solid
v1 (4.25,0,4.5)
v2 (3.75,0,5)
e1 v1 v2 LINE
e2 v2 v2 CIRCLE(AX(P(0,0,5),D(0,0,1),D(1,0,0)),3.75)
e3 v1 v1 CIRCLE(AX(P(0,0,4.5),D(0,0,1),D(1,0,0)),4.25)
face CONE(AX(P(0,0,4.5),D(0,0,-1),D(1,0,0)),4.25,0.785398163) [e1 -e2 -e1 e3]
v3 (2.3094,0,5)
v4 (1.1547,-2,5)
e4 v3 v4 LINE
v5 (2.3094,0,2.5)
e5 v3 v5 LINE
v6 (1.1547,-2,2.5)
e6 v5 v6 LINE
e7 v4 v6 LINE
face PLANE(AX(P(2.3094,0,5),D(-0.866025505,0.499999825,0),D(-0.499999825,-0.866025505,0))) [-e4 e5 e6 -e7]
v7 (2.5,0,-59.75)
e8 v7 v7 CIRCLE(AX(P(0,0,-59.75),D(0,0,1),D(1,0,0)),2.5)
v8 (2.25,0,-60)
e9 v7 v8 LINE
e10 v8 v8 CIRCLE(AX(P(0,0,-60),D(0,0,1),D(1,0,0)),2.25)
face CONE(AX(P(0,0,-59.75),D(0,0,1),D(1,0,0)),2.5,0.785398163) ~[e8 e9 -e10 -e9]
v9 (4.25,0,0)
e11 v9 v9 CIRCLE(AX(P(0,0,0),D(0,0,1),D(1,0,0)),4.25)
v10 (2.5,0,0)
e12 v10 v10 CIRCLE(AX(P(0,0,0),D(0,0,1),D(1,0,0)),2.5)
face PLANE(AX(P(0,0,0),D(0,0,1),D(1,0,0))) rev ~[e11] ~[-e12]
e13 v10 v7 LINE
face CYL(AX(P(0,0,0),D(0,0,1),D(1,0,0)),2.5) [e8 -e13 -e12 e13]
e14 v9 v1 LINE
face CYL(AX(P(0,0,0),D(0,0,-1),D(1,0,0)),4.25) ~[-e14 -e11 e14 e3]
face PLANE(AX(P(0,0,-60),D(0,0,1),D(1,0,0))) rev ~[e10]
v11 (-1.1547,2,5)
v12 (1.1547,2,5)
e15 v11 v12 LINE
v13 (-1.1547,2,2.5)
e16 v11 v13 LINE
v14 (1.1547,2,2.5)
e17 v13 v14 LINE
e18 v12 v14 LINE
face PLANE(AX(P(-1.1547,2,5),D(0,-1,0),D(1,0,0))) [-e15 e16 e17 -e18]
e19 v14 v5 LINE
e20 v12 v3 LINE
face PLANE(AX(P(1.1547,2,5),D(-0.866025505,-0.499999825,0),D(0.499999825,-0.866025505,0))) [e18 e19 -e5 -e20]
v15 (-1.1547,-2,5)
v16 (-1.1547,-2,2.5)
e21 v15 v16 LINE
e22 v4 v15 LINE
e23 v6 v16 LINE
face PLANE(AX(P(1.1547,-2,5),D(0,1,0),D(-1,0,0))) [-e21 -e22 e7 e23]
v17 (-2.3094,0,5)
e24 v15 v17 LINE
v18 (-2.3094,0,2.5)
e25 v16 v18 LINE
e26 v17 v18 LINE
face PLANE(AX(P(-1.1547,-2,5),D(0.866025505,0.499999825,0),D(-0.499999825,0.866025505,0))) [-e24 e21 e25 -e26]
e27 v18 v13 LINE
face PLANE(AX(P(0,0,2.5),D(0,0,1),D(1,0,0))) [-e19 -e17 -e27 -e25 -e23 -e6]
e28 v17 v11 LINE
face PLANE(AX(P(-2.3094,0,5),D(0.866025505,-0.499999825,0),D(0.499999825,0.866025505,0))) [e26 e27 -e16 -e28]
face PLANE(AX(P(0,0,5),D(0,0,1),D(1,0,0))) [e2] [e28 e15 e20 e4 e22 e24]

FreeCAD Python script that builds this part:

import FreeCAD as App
import Part
import Sketcher
from FreeCAD import Vector
Q = App.Units.Quantity


def edges_at(feature, points):
    """Names of the edges that pass closest to the given points."""
    edges = feature.Shape.Edges
    near = lambda p: min(range(len(edges)), key=lambda i: edges[i].distToShape(Part.Vertex(*p))[0])
    return sorted({f"Edge{near(p) + 1}" for p in points})

doc = App.newDocument("Part")
body = doc.addObject("PartDesign::Body", "Body")

sketch1 = body.newObject("Sketcher::SketchObject", "Sketch")
sketch1.AttachmentSupport = (doc.getObject("XY_Plane"), [""])
sketch1.MapMode = "FlatFace"
sketch1.addGeometry(Part.Circle(Vector(0, 0, 0), Vector(0, 0, 1), 2.5), False)
sketch1.addConstraint(Sketcher.Constraint("Coincident", 0, 3, -1, 1))
sketch1.addConstraint(Sketcher.Constraint("Diameter", 0, Q("5 mm")))
pad1 = body.newObject("PartDesign::Pad", "Pad")
pad1.Profile = sketch1
pad1.Length = 60
pad1.Reversed = True

sketch2 = body.newObject("Sketcher::SketchObject", "Sketch001")
sketch2.AttachmentSupport = (doc.getObject("XY_Plane"), [""])
sketch2.MapMode = "FlatFace"
sketch2.addGeometry(Part.Circle(Vector(0, 0, 0), Vector(0, 0, 1), 4.2), False)
sketch2.addConstraint(Sketcher.Constraint("Coincident", 0, 3, -1, 1))
sketch2.addConstraint(Sketcher.Constraint("Diameter", 0, Q("8.5 mm")))
pad2 = body.newObject("PartDesign::Pad", "Pad001")
pad2.Profile = sketch2
pad2.Length = 5

sketch3 = body.newObject("Sketcher::SketchObject", "Sketch002")
sketch3.AttachmentSupport = (doc.getObject("XY_Plane"), [""])
sketch3.MapMode = "FlatFace"
sketch3.AttachmentOffset = App.Placement(Vector(0, 0, 5), App.Rotation())
sketch3.addGeometry(Part.LineSegment(Vector(1.2, -2, 0), Vector(2.3, 0, 0)), False)
sketch3.addGeometry(Part.LineSegment(Vector(2.3, 0, 0), Vector(1.2, 2, 0)), False)
sketch3.addGeometry(Part.LineSegment(Vector(1.2, 2, 0), Vector(-1.2, 2, 0)), False)
sketch3.addGeometry(Part.LineSegment(Vector(-1.2, 2, 0), Vector(-2.3, 0, 0)), False)
sketch3.addGeometry(Part.LineSegment(Vector(-2.3, 0, 0), Vector(-1.2, -2, 0)), False)
sketch3.addGeometry(Part.LineSegment(Vector(-1.2, -2, 0), Vector(1.2, -2, 0)), False)
sketch3.addConstraint(Sketcher.Constraint("Coincident", 0, 2, 1, 1))
sketch3.addConstraint(Sketcher.Constraint("Coincident", 1, 2, 2, 1))
sketch3.addConstraint(Sketcher.Constraint("Coincident", 2, 2, 3, 1))
sketch3.addConstraint(Sketcher.Constraint("Coincident", 3, 2, 4, 1))
sketch3.addConstraint(Sketcher.Constraint("Coincident", 4, 2, 5, 1))
sketch3.addConstraint(Sketcher.Constraint("Coincident", 5, 2, 0, 1))
sketch3.addConstraint(Sketcher.Constraint("Horizontal", 2))
sketch3.addConstraint(Sketcher.Constraint("Horizontal", 5))
sketch3.addConstraint(Sketcher.Constraint("Symmetric", 0, 2, 3, 2, -1, 1))
sketch3.addConstraint(Sketcher.Constraint("Symmetric", 1, 2, 4, 2, -1, 1))
sketch3.addConstraint(Sketcher.Constraint("PointOnObject", 0, 2, -1))
sketch3.addConstraint(Sketcher.Constraint("Parallel", 0, 3))
sketch3.addConstraint(Sketcher.Constraint("Vertical", 2, 2, 4, 2))
sketch3.addConstraint(Sketcher.Constraint("DistanceY", 4, 2, 2, 2, Q("4 mm")))
sketch3.addConstraint(Sketcher.Constraint("Angle", 0, Q("60 deg")))
sketch3.addConstraint(Sketcher.Constraint("DistanceX", 2, 2, 2, 1, Q("2.3094 mm")))
pocket1 = body.newObject("PartDesign::Pocket", "Pocket")
pocket1.Profile = sketch3
pocket1.Length = 2.5
doc.recompute()

chamfer = body.newObject("PartDesign::Chamfer", "Chamfer")
chamfer.Base = (pocket1, edges_at(pocket1, [(-4.25, 0, 5)]))
chamfer.Size = 0.5
doc.recompute()

chamfer2 = body.newObject("PartDesign::Chamfer", "Chamfer001")
chamfer2.Base = (chamfer, edges_at(chamfer, [(-2.5, 0, -60)]))
chamfer2.Size = 0.25

doc.recompute()
